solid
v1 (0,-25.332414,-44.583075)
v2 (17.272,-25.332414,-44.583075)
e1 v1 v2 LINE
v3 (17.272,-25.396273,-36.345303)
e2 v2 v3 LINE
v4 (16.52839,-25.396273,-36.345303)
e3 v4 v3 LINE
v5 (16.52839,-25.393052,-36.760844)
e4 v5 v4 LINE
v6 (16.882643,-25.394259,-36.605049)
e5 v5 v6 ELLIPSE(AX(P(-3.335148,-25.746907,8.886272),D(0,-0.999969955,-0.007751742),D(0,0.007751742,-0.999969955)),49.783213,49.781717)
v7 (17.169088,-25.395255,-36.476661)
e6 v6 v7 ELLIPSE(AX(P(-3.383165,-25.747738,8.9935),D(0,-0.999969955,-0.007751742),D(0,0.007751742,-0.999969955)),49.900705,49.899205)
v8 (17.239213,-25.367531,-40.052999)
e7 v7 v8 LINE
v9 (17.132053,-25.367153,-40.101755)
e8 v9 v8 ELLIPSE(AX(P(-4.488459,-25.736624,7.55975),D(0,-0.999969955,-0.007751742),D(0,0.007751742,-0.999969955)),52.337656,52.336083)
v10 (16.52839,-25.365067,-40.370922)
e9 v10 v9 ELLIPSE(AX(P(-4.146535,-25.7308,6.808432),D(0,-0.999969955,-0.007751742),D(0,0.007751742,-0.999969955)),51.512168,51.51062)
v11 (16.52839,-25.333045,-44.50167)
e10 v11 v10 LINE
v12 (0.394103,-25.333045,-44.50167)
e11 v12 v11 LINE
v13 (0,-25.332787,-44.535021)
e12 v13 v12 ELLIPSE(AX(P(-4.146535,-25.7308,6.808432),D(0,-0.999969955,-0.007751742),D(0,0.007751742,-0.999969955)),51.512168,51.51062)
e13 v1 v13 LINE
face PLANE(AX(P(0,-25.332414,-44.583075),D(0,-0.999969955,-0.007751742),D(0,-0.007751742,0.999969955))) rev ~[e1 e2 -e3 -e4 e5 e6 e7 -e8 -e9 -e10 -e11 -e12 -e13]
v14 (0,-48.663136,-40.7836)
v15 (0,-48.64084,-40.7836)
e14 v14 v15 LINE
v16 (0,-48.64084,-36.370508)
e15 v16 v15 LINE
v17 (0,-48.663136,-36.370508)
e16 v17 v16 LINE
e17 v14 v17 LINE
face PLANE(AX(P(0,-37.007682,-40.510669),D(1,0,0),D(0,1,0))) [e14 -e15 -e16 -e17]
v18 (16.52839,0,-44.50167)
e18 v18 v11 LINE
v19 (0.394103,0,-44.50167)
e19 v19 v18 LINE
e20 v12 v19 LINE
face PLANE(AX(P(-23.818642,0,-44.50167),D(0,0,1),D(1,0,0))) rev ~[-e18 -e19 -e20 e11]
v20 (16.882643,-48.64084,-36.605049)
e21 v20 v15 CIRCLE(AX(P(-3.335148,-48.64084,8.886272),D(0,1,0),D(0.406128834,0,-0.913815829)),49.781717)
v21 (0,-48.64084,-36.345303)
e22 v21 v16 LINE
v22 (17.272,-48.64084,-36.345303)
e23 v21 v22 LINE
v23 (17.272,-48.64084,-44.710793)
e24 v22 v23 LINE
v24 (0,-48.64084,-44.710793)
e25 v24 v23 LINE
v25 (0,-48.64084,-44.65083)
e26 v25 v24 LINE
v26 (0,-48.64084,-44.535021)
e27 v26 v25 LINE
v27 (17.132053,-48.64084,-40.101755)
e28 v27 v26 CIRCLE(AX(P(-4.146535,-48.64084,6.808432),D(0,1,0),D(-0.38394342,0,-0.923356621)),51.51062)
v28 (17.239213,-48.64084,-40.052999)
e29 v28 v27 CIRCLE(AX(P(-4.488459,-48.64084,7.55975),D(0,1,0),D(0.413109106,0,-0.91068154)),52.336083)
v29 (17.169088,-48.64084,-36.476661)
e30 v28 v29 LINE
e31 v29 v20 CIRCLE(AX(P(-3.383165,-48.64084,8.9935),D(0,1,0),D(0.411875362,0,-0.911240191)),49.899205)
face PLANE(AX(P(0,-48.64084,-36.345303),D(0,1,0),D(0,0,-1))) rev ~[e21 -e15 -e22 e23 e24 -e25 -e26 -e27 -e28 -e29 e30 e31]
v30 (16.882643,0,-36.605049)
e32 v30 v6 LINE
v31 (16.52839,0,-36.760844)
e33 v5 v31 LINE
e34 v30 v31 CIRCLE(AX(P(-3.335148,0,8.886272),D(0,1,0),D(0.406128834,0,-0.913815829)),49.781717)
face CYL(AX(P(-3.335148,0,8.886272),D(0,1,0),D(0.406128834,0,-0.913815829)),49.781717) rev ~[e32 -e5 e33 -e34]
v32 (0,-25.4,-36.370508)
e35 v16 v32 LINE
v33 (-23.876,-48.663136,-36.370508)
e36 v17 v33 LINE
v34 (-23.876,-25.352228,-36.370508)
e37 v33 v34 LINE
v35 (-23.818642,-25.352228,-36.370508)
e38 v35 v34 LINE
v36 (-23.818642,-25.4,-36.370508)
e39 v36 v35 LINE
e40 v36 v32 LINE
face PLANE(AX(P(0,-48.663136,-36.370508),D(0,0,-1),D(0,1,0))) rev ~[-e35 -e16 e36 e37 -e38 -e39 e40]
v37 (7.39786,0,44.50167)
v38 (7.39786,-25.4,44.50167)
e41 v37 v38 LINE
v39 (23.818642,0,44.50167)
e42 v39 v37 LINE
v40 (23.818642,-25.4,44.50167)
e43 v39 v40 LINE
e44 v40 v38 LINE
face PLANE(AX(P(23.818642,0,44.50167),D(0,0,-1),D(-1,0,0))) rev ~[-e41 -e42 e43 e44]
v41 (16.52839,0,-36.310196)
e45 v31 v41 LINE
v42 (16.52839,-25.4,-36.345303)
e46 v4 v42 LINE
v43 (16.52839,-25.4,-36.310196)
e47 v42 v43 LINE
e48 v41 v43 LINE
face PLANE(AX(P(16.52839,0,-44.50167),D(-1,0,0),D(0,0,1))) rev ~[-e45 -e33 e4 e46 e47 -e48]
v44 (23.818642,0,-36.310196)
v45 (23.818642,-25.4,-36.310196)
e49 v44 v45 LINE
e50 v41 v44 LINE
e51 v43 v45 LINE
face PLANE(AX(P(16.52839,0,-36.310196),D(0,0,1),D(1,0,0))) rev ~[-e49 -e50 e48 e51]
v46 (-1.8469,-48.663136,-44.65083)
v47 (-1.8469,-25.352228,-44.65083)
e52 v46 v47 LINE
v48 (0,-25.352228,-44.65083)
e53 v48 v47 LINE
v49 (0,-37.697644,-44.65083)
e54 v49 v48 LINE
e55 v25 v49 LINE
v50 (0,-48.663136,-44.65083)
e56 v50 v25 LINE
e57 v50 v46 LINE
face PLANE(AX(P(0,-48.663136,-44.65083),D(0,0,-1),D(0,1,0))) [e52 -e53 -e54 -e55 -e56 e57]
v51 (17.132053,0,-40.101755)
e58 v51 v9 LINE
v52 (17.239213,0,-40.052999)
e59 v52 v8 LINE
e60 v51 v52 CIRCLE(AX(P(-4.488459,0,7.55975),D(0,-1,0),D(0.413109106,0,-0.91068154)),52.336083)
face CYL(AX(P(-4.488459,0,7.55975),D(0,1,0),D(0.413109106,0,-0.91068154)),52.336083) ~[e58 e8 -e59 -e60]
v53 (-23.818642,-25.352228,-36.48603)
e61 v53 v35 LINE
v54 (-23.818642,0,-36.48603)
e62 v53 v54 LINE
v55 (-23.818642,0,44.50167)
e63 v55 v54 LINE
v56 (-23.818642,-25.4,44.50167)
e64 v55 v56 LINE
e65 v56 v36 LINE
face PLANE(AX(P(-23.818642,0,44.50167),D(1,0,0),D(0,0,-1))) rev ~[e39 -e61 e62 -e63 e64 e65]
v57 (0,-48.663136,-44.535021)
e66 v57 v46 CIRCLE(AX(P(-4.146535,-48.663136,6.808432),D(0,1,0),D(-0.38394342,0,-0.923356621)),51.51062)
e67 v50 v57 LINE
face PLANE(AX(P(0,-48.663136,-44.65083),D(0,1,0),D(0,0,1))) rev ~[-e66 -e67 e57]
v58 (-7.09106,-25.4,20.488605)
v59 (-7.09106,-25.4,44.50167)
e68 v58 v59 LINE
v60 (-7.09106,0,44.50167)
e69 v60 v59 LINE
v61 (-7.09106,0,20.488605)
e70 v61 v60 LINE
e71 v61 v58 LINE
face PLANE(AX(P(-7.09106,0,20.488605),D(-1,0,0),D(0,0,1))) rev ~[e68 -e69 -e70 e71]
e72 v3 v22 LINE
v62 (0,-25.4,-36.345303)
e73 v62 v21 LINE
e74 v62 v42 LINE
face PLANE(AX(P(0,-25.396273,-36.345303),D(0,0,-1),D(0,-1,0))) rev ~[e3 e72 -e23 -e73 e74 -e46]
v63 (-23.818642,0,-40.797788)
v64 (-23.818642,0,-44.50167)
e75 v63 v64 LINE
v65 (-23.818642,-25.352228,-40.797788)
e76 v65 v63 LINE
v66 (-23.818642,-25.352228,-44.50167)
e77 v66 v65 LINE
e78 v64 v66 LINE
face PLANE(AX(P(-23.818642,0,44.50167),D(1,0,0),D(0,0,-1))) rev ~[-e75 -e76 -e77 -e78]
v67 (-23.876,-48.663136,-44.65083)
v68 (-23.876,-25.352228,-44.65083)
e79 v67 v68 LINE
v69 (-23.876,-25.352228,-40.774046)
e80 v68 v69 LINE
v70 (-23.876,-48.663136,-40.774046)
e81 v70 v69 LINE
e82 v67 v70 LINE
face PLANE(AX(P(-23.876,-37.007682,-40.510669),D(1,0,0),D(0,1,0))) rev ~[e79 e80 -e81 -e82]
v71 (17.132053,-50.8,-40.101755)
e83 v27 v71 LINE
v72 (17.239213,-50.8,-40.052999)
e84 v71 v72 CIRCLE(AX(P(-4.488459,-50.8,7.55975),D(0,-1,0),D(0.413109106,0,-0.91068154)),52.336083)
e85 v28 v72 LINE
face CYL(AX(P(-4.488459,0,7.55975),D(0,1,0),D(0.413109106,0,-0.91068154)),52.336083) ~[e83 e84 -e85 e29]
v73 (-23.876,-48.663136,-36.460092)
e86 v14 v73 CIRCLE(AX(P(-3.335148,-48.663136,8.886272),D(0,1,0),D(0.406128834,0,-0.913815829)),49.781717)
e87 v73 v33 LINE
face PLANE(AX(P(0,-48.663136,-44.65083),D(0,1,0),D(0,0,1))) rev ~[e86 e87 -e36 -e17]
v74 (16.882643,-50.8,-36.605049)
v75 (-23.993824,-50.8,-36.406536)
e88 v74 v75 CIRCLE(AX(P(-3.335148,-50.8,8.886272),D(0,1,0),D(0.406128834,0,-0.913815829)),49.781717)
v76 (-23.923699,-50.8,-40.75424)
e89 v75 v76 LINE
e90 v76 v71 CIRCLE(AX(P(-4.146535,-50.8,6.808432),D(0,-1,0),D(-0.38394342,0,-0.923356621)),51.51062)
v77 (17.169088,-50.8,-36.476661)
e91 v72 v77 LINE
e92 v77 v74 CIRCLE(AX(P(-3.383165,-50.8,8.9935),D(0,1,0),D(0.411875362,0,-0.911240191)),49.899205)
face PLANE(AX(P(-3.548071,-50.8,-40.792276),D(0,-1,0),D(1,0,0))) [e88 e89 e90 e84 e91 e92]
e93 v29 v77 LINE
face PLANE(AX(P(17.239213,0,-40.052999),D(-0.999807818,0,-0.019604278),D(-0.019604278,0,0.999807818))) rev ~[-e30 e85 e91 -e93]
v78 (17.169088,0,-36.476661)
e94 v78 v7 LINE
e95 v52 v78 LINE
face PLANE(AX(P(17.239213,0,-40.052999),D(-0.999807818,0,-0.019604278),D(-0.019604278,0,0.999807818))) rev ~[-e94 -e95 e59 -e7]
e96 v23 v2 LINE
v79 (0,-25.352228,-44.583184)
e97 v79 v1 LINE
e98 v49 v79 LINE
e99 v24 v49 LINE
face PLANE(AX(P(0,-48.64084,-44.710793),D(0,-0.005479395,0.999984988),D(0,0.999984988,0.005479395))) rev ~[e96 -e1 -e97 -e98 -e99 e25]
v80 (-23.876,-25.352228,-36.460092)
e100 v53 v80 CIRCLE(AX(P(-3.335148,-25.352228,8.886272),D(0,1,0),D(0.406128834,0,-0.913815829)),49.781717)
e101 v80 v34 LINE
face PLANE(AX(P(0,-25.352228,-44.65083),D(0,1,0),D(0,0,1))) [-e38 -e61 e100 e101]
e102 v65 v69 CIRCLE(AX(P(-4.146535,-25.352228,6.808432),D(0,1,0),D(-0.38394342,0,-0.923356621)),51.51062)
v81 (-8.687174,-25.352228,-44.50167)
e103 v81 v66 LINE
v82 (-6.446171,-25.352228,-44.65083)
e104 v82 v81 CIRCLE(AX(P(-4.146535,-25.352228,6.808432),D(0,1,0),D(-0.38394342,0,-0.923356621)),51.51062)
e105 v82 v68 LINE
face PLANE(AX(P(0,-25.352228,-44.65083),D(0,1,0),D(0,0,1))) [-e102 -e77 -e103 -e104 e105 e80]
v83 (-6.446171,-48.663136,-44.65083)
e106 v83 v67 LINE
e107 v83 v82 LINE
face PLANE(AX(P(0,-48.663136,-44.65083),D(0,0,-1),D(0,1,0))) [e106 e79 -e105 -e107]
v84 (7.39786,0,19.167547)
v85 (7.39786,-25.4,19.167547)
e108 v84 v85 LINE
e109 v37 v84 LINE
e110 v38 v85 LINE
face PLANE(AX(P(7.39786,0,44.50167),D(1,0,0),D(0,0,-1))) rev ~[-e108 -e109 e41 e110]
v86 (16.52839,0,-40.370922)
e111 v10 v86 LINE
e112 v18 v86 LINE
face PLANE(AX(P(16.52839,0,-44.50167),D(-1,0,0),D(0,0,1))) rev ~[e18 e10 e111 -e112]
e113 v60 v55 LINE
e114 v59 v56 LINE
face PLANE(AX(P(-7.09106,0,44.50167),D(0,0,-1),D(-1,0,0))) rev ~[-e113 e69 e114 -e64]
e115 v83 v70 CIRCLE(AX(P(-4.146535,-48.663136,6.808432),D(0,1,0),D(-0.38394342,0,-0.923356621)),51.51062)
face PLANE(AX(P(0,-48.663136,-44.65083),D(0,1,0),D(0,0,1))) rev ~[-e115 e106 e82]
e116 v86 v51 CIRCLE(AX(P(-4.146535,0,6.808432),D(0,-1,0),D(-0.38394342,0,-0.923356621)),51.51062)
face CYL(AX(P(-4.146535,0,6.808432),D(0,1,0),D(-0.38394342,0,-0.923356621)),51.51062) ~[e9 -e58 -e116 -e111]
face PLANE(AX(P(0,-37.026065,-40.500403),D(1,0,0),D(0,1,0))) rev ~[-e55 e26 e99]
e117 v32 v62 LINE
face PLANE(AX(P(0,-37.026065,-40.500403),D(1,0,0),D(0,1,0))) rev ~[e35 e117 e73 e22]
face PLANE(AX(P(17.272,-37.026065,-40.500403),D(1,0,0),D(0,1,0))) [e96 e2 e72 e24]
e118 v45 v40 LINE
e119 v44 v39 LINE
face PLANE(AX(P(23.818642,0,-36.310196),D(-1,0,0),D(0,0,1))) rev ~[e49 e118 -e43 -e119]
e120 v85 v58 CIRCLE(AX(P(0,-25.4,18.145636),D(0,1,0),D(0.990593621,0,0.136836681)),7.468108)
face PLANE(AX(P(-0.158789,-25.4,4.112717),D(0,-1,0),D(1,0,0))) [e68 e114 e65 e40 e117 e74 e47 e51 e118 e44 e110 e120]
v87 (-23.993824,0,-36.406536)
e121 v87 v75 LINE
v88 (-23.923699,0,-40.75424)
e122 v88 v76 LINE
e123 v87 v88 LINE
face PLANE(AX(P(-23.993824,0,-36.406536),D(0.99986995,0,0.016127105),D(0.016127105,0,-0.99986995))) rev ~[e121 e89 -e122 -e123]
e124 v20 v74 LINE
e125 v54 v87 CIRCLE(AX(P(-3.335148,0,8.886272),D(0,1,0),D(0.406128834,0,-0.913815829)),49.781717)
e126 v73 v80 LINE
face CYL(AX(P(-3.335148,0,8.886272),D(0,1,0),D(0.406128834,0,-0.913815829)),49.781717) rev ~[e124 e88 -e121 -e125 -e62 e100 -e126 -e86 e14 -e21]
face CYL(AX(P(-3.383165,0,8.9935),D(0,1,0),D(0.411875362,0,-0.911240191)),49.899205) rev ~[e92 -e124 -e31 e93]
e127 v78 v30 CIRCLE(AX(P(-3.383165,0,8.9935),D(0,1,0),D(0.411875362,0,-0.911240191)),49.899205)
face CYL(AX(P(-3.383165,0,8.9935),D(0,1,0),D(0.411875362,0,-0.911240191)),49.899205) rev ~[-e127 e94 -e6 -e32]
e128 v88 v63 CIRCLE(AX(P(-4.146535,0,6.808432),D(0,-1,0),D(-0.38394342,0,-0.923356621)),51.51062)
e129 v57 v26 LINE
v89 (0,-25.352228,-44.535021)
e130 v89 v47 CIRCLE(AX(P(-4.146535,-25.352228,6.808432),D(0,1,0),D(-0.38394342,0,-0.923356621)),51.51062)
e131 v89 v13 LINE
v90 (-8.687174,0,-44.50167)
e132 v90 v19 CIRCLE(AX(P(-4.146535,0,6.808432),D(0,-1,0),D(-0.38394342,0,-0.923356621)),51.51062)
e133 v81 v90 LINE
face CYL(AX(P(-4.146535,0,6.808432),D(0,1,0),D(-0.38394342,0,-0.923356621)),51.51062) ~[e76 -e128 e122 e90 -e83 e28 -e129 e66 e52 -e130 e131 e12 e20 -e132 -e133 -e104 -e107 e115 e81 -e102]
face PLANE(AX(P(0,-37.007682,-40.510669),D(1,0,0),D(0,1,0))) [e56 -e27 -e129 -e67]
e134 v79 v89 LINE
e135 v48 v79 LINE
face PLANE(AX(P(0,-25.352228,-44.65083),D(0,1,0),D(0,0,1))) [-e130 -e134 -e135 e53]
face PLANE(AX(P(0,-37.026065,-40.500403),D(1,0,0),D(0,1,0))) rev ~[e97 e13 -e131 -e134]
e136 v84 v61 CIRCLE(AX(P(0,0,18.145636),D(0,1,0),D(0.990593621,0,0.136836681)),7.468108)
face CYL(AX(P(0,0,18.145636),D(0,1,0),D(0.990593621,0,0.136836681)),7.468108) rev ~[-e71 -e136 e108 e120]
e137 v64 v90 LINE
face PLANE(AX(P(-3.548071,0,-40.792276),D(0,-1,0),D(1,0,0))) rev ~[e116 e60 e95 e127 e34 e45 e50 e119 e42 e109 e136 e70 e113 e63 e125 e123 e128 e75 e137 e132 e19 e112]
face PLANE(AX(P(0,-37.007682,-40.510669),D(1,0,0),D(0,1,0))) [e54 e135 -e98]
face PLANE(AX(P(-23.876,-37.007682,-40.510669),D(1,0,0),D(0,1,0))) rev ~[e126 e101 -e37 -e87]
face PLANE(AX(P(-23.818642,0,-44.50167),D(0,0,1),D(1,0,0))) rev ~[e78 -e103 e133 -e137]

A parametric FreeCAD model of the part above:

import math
import FreeCAD as App
import Part
import Sketcher
from FreeCAD import Vector


def add_polygon(sketch, points):
    """Adds a closed chain of lines whose ends are joined by coincident constraints."""
    first, n = sketch.GeometryCount, len(points)
    for a, b in zip(points, points[1:] + points[:1]):
        sketch.addGeometry(Part.LineSegment(App.Vector(*a, 0), App.Vector(*b, 0)), False)
    for i in range(n):
        sketch.addConstraint(Sketcher.Constraint("Coincident", first + i, 2, first + (i + 1) % n, 1))

doc = App.newDocument("Part")
params = doc.addObject("Spreadsheet::Sheet", "Params")
for row, (alias, value) in enumerate([
    ("pad1_length", "1 in"),
    ("pad2_length", "0.68 in"),
    ("pad3_length", "0.94 in"),
    ("pad4_length", "2 in"),
], start=1):
    params.set(f"A{row}", alias)
    params.set(f"B{row}", "=" + value)
    params.setAlias(f"B{row}", alias)

body = doc.addObject("PartDesign::Body", "Body")

# Sketch on XZ plane
sketch1 = body.newObject("Sketcher::SketchObject", "Sketch")
sketch1.AttachmentSupport = (doc.getObject("XZ_Plane"), [""])
sketch1.MapMode = "FlatFace"
sketch1.addGeometry(Part.LineSegment(Vector(23.818642, -36.310196, 0), Vector(23.818642, 44.50167, 0)), False)
sketch1.addGeometry(Part.LineSegment(Vector(23.818642, 44.50167, 0), Vector(7.39786, 44.50167, 0)), False)
sketch1.addGeometry(Part.LineSegment(Vector(7.39786, 44.50167, 0), Vector(7.39786, 19.167547, 0)), False)
sketch1.addGeometry(Part.ArcOfCircle(Part.Circle(Vector(0, 18.145636, 0), Vector(0, 0, 1), 7.468108), math.radians(161.715841), math.radians(367.86484)), False)
sketch1.addGeometry(Part.LineSegment(Vector(-7.09106, 20.488605, 0), Vector(-7.09106, 44.50167, 0)), False)
sketch1.addGeometry(Part.LineSegment(Vector(-7.09106, 44.50167, 0), Vector(-23.818642, 44.50167, 0)), False)
sketch1.addGeometry(Part.LineSegment(Vector(-23.818642, 44.50167, 0), Vector(-23.818642, -44.50167, 0)), False)
sketch1.addGeometry(Part.LineSegment(Vector(-23.818642, -44.50167, 0), Vector(16.52839, -44.50167, 0)), False)
sketch1.addGeometry(Part.LineSegment(Vector(16.52839, -44.50167, 0), Vector(16.52839, -36.310196, 0)), False)
sketch1.addGeometry(Part.LineSegment(Vector(16.52839, -36.310196, 0), Vector(23.818642, -36.310196, 0)), False)
sketch1.addConstraint(Sketcher.Constraint("Coincident", 0, 2, 1, 1))
sketch1.addConstraint(Sketcher.Constraint("Coincident", 1, 2, 2, 1))
sketch1.addConstraint(Sketcher.Constraint("Coincident", 2, 2, 3, 2))
sketch1.addConstraint(Sketcher.Constraint("Coincident", 3, 1, 4, 1))
sketch1.addConstraint(Sketcher.Constraint("Coincident", 4, 2, 5, 1))
sketch1.addConstraint(Sketcher.Constraint("Coincident", 5, 2, 6, 1))
sketch1.addConstraint(Sketcher.Constraint("Coincident", 6, 2, 7, 1))
sketch1.addConstraint(Sketcher.Constraint("Coincident", 7, 2, 8, 1))
sketch1.addConstraint(Sketcher.Constraint("Coincident", 8, 2, 9, 1))
sketch1.addConstraint(Sketcher.Constraint("Coincident", 9, 2, 0, 1))
sketch1.addConstraint(Sketcher.Constraint("Vertical", 0))
sketch1.addConstraint(Sketcher.Constraint("Horizontal", 1))
sketch1.addConstraint(Sketcher.Constraint("Vertical", 2))
sketch1.addConstraint(Sketcher.Constraint("Vertical", 4))
sketch1.addConstraint(Sketcher.Constraint("Horizontal", 5))
sketch1.addConstraint(Sketcher.Constraint("Vertical", 6))
sketch1.addConstraint(Sketcher.Constraint("Horizontal", 7))
sketch1.addConstraint(Sketcher.Constraint("Vertical", 8))
sketch1.addConstraint(Sketcher.Constraint("Horizontal", 9))
sketch1.addConstraint(Sketcher.Constraint("Symmetric", 0, 2, 6, 2, -1, 1))
sketch1.addConstraint(Sketcher.Constraint("PointOnObject", 3, 3, -2))
sketch1.addConstraint(Sketcher.Constraint("Horizontal", 1, 2, 4, 2))
sketch1.addConstraint(Sketcher.Constraint("Radius", 3, 7.468108))
sketch1.addConstraint(Sketcher.Constraint("DistanceX", 9, 1, 9, 2, 7.290252))
sketch1.addConstraint(Sketcher.Constraint("DistanceY", 6, 2, 6, 1, 89.00334))
sketch1.addConstraint(Sketcher.Constraint("DistanceX", 3, 1, 0, 2, 30.909702))
sketch1.addConstraint(Sketcher.Constraint("DistanceX", 5, 2, 1, 2, 31.216502))
sketch1.addConstraint(Sketcher.Constraint("DistanceY", 8, 2, 3, 1, 56.798801))
sketch1.addConstraint(Sketcher.Constraint("DistanceX", 1, 2, 1, 1, 16.420782))
sketch1.addConstraint(Sketcher.Constraint("DistanceY", 0, 1, 0, 2, 80.811866))
pad1 = body.newObject("PartDesign::Pad", "Pad")
pad1.Profile = sketch1
pad1.setExpression("Length", "Params.pad1_length")

# Sketch on YZ plane
sketch2 = body.newObject("Sketcher::SketchObject", "Sketch001")
sketch2.AttachmentSupport = (doc.getObject("YZ_Plane"), [""])
sketch2.MapMode = "FlatFace"
add_polygon(sketch2, [(-25.332414, -44.583075), (-25.396273, -36.345303), (-48.64084, -36.345303), (-48.64084, -44.710793)])  # lines 0-3
sketch2.addConstraint(Sketcher.Constraint("Horizontal", 1))
sketch2.addConstraint(Sketcher.Constraint("Vertical", 2))
sketch2.addConstraint(Sketcher.Constraint("DistanceY", 2, 2, 2, 1, 8.36549))
sketch2.addConstraint(Sketcher.Constraint("Distance", 0, 8.23802))
sketch2.addConstraint(Sketcher.Constraint("DistanceX", 1, 2, 1, 1, 23.244567))
sketch2.addConstraint(Sketcher.Constraint("DistanceX", 1, 2, -1, 1, 48.64084))
sketch2.addConstraint(Sketcher.Constraint("DistanceX", 0, 2, 3, 2, 0.063859))
sketch2.addConstraint(Sketcher.Constraint("DistanceY", 0, 2, -1, 1, 36.345303))
pad2 = body.newObject("PartDesign::Pad", "Pad001")
pad2.Profile = sketch2
pad2.setExpression("Length", "Params.pad2_length")

# Sketch on YZ plane
sketch3 = body.newObject("Sketcher::SketchObject", "Sketch002")
sketch3.AttachmentSupport = (doc.getObject("YZ_Plane"), [""])
sketch3.MapMode = "FlatFace"
add_polygon(sketch3, [(-48.663136, -36.370508), (-48.663136, -44.65083), (-25.352228, -44.65083), (-25.352228, -36.370508)])  # lines 0-3
sketch3.addConstraint(Sketcher.Constraint("Vertical", 0))
sketch3.addConstraint(Sketcher.Constraint("Horizontal", 1))
sketch3.addConstraint(Sketcher.Constraint("Vertical", 2))
sketch3.addConstraint(Sketcher.Constraint("Horizontal", 3))
sketch3.addConstraint(Sketcher.Constraint("DistanceX", 1, 1, 1, 2, 23.310908))
sketch3.addConstraint(Sketcher.Constraint("DistanceY", 0, 2, 0, 1, 8.280322))
sketch3.addConstraint(Sketcher.Constraint("DistanceY", 0, 2, -1, 1, 44.65083))
sketch3.addConstraint(Sketcher.Constraint("DistanceX", 1, 2, -1, 1, 25.352228))
pad3 = body.newObject("PartDesign::Pad", "Pad002")
pad3.Profile = sketch3
pad3.setExpression("Length", "Params.pad3_length")
pad3.Reversed = True

# Sketch on XZ plane
sketch4 = body.newObject("Sketcher::SketchObject", "Sketch003")
sketch4.AttachmentSupport = (doc.getObject("XZ_Plane"), [""])
sketch4.MapMode = "FlatFace"
sketch4.addGeometry(Part.ArcOfCircle(Part.Circle(Vector(-3.335148, 8.886272, 0), Vector(0, 0, 1), 49.781717), math.radians(-114.518385), math.radians(-66.038115)), False)
sketch4.addGeometry(Part.LineSegment(Vector(-23.993824, -36.406536, 0), Vector(-23.923699, -40.75424, 0)), False)
sketch4.addGeometry(Part.ArcOfCircle(Part.Circle(Vector(-4.146535, 6.808432, 0), Vector(0, 0, 1), 51.51062), math.radians(-112.578162), math.radians(-65.600827)), False)
sketch4.addGeometry(Part.ArcOfCircle(Part.Circle(Vector(-4.488459, 7.55975, 0), Vector(0, 0, 1), 52.336083), math.radians(-65.599706), math.radians(-65.470819)), False)
sketch4.addGeometry(Part.LineSegment(Vector(17.239213, -40.052999, 0), Vector(17.169088, -36.476661, 0)), False)
sketch4.addGeometry(Part.ArcOfCircle(Part.Circle(Vector(-3.383165, 8.9935, 0), Vector(0, 0, 1), 49.899205), math.radians(-66.037735), math.radians(-65.677303)), False)
sketch4.addConstraint(Sketcher.Constraint("Coincident", 0, 1, 1, 1))
sketch4.addConstraint(Sketcher.Constraint("Coincident", 1, 2, 2, 1))
sketch4.addConstraint(Sketcher.Constraint("Coincident", 2, 2, 3, 1))
sketch4.addConstraint(Sketcher.Constraint("Coincident", 3, 2, 4, 1))
sketch4.addConstraint(Sketcher.Constraint("Coincident", 4, 2, 5, 2))
sketch4.addConstraint(Sketcher.Constraint("Coincident", 5, 1, 0, 2))
sketch4.addConstraint(Sketcher.Constraint("Radius", 2, 51.51062))
sketch4.addConstraint(Sketcher.Constraint("Radius", 0, 49.781717))
sketch4.addConstraint(Sketcher.Constraint("Radius", 3, 52.336083))
sketch4.addConstraint(Sketcher.Constraint("Radius", 5, 49.899205))
sketch4.addConstraint(Sketcher.Constraint("DistanceY", -1, 1, 5, 3, 8.9935))
sketch4.addConstraint(Sketcher.Constraint("DistanceX", 1, 2, -1, 1, 23.923699))
sketch4.addConstraint(Sketcher.Constraint("DistanceY", 3, 2, -1, 1, 40.052999))
sketch4.addConstraint(Sketcher.Constraint("DistanceX", 0, 3, 2, 2, 20.467201))
sketch4.addConstraint(Sketcher.Constraint("Distance", 1, 4.348269))
sketch4.addConstraint(Sketcher.Constraint("DistanceY", -1, 1, 2, 3, 6.808432))
sketch4.addConstraint(Sketcher.Constraint("DistanceX", 3, 3, -1, 1, 4.488459))
sketch4.addConstraint(Sketcher.Constraint("DistanceY", -1, 1, 3, 3, 7.55975))
sketch4.addConstraint(Sketcher.Constraint("DistanceY", 4, 2, -1, 1, 36.476661))
sketch4.addConstraint(Sketcher.Constraint("DistanceY", 5, 1, -1, 1, 36.605049))
sketch4.addConstraint(Sketcher.Constraint("DistanceY", 2, 3, 0, 3, 2.07784))
sketch4.addConstraint(Sketcher.Constraint("DistanceX", 3, 3, 0, 3, 1.153312))
pad4 = body.newObject("PartDesign::Pad", "Pad003")
pad4.Profile = sketch4
pad4.setExpression("Length", "Params.pad4_length")

doc.recompute()
